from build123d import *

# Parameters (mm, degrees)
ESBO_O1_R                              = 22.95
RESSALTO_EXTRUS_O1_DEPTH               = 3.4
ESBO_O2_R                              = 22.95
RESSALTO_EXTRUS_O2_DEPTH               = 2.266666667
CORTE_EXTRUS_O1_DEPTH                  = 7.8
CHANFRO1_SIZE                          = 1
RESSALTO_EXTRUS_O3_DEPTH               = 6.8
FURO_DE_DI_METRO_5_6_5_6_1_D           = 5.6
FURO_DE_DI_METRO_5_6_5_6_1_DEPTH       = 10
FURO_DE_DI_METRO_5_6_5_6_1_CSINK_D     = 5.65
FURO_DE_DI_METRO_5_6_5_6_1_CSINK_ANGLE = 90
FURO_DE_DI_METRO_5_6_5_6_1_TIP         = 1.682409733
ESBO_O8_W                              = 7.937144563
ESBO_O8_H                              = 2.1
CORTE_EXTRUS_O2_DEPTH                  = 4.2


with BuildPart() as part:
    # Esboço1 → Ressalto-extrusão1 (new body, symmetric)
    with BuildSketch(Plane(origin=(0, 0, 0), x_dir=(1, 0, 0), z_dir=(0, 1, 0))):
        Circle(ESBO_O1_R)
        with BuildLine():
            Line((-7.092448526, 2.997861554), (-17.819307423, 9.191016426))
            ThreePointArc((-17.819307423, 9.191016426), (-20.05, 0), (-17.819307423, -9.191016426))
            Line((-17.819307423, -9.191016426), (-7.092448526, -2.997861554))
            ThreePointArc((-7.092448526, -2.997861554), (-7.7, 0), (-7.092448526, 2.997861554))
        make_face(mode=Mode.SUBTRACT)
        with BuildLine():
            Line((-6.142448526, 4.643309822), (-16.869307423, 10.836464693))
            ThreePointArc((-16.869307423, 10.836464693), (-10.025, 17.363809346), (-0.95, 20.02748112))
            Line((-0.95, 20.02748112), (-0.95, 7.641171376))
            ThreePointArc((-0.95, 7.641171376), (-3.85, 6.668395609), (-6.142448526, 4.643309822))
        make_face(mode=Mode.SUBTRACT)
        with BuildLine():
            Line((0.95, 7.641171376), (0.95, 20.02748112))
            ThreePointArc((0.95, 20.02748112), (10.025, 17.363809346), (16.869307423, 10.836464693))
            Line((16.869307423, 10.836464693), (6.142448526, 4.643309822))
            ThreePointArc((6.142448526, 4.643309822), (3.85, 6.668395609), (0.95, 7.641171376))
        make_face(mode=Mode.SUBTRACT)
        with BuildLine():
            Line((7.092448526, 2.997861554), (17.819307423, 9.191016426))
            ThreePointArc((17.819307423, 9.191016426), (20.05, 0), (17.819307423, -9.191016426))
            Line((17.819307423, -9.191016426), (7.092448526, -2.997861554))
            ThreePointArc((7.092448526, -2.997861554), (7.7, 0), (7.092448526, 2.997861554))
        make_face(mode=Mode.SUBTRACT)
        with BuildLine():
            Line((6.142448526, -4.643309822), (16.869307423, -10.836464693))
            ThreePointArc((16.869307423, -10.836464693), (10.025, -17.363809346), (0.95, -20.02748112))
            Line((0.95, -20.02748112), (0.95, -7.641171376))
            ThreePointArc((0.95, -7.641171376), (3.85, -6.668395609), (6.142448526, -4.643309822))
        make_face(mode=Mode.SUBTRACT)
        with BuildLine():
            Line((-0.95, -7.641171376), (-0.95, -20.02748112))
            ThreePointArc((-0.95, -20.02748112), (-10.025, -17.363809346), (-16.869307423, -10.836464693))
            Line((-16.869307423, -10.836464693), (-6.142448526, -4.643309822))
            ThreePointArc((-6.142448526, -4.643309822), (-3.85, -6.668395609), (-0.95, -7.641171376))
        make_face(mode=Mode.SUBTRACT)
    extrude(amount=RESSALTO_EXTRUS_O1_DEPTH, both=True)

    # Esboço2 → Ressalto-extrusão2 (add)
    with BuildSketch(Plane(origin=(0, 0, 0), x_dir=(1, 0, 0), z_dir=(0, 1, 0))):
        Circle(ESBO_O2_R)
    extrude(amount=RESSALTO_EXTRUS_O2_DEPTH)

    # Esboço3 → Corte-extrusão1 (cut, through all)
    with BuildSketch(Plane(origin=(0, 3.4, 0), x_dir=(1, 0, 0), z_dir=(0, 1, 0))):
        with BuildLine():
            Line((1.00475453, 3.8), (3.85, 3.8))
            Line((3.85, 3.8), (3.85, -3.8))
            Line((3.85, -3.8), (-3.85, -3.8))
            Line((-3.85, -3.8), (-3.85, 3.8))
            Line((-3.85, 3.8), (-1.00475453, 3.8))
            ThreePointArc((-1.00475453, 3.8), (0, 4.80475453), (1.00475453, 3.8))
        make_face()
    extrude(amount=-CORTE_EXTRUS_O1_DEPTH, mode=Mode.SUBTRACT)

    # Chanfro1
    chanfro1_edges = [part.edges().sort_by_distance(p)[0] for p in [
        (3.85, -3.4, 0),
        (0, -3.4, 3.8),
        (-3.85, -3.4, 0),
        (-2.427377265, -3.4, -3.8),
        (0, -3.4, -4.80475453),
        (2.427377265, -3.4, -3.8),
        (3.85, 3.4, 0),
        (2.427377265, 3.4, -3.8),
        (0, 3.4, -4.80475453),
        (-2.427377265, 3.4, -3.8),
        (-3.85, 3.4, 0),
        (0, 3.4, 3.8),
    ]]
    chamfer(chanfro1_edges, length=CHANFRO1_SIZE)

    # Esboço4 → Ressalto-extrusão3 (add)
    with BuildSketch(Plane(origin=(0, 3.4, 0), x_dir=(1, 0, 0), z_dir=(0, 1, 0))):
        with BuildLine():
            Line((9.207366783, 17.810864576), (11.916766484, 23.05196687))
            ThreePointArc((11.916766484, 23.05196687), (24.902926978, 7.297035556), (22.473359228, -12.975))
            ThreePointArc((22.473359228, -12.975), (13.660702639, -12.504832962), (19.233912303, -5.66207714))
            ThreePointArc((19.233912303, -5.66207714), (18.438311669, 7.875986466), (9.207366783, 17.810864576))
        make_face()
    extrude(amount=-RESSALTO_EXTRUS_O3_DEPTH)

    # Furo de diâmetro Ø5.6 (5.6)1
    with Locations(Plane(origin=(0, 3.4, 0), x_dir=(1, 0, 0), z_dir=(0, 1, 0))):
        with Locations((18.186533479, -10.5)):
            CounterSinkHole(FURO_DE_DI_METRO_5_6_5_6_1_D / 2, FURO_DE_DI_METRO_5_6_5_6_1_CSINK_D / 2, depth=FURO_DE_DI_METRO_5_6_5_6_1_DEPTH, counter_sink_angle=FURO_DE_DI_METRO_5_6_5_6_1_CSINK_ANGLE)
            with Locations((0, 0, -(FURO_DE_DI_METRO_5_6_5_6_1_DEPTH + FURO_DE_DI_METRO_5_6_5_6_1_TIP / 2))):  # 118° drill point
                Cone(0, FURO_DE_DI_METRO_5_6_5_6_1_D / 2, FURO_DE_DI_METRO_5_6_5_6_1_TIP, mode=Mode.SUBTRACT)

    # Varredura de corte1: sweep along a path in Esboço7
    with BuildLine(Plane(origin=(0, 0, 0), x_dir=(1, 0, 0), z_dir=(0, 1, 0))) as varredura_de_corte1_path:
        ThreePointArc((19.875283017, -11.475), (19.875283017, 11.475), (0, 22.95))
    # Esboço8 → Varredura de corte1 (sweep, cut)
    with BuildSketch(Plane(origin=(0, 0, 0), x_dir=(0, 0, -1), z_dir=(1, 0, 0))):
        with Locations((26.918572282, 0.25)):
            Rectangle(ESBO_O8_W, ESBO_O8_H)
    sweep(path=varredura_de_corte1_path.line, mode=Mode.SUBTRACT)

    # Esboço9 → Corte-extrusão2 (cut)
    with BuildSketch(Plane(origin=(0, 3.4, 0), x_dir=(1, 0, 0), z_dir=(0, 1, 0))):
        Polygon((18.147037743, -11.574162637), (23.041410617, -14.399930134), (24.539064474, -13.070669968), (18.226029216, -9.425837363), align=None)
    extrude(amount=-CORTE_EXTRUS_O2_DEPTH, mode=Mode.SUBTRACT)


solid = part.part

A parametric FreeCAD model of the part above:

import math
import FreeCAD as App
import Part
import Sketcher

V = App.Vector
Q = App.Units.Quantity


def edges_at(feature, points):
    """Names of the edges that pass closest to the given points."""
    edges = feature.Shape.Edges
    near = lambda p: min(range(len(edges)), key=lambda i: edges[i].distToShape(Part.Vertex(*p))[0])
    return sorted({f"Edge{near(p) + 1}" for p in points})


def add_polygon(sketch, points):
    """Adds a closed chain of lines whose ends are joined by coincident constraints."""
    first, n = sketch.GeometryCount, len(points)
    for a, b in zip(points, points[1:] + points[:1]):
        sketch.addGeometry(Part.LineSegment(App.Vector(*a, 0), App.Vector(*b, 0)), False)
    for i in range(n):
        sketch.addConstraint(Sketcher.Constraint("Coincident", first + i, 2, first + (i + 1) % n, 1))

doc = App.newDocument("Part")
body = doc.addObject("PartDesign::Body", "Body")

# Sketch on XZ plane
sketch1 = body.newObject("Sketcher::SketchObject", "Sketch")
sketch1.AttachmentSupport = (doc.getObject("XZ_Plane"), [""])
sketch1.MapMode = "FlatFace"
sketch1.addGeometry([
    Part.Circle(V(0, 0, 0), V(0, 0, 1), 23),  # 0
    Part.ArcOfCircle(Part.Circle(V(0, 0, 0), V(0, 0, 1), 8), math.radians(97), math.radians(143)),  # 1
    Part.LineSegment(V(-1, 8, 0), V(-1, 20, 0)),  # 2
    Part.ArcOfCircle(Part.Circle(V(0, 0, 0), V(0, 0, 1), 20), math.radians(93), math.radians(147)),  # 3
    Part.LineSegment(V(-17, 11, 0), V(-6, 5, 0)),  # 4
    Part.ArcOfCircle(Part.Circle(V(0, 0, 0), V(0, 0, 1), 8), math.radians(37), math.radians(83)),  # 5
    Part.LineSegment(V(6, 5, 0), V(17, 11, 0)),  # 6
    Part.ArcOfCircle(Part.Circle(V(0, 0, 0), V(0, 0, 1), 20), math.radians(33), math.radians(87)),  # 7
    Part.LineSegment(V(1, 20, 0), V(1, 8, 0)),  # 8
    Part.LineSegment(V(-18, -9, 0), V(-7, -3, 0)),  # 9
    Part.ArcOfCircle(Part.Circle(V(0, 0, 0), V(0, 0, 1), 8), math.radians(157), math.radians(203)),  # 10
    Part.LineSegment(V(-7, 3, 0), V(-18, 9, 0)),  # 11
    Part.ArcOfCircle(Part.Circle(V(0, 0, 0), V(0, 0, 1), 20), math.radians(153), math.radians(207)),  # 12
    Part.ArcOfCircle(Part.Circle(V(0, 0, 0), V(0, 0, 1), 8), math.radians(-143), math.radians(-97)),  # 13
    Part.LineSegment(V(-6, -5, 0), V(-17, -11, 0)),  # 14
    Part.ArcOfCircle(Part.Circle(V(0, 0, 0), V(0, 0, 1), 20), math.radians(-147), math.radians(-93)),  # 15
    Part.LineSegment(V(-1, -20, 0), V(-1, -8, 0)),  # 16
    Part.ArcOfCircle(Part.Circle(V(0, 0, 0), V(0, 0, 1), 8), math.radians(-23), math.radians(23)),  # 17
    Part.LineSegment(V(7, -3, 0), V(18, -9, 0)),  # 18
    Part.ArcOfCircle(Part.Circle(V(0, 0, 0), V(0, 0, 1), 20), math.radians(-27), math.radians(27)),  # 19
    Part.LineSegment(V(18, 9, 0), V(7, 3, 0)),  # 20
    Part.ArcOfCircle(Part.Circle(V(0, 0, 0), V(0, 0, 1), 8), math.radians(-83), math.radians(-37)),  # 21
    Part.LineSegment(V(1, -8, 0), V(1, -20, 0)),  # 22
    Part.ArcOfCircle(Part.Circle(V(0, 0, 0), V(0, 0, 1), 20), math.radians(-87), math.radians(-33)),  # 23
    Part.LineSegment(V(17, -11, 0), V(6, -5, 0)),  # 24
], False)
sketch1.addConstraint([
    Sketcher.Constraint("Coincident", 1, 1, 2, 1),
    Sketcher.Constraint("Coincident", 2, 2, 3, 1),
    Sketcher.Constraint("Coincident", 3, 2, 4, 1),
    Sketcher.Constraint("Coincident", 4, 2, 1, 2),
    Sketcher.Constraint("Coincident", 5, 1, 6, 1),
    Sketcher.Constraint("Coincident", 6, 2, 7, 1),
    Sketcher.Constraint("Coincident", 7, 2, 8, 1),
    Sketcher.Constraint("Coincident", 8, 2, 5, 2),
    Sketcher.Constraint("Coincident", 9, 2, 10, 2),
    Sketcher.Constraint("Coincident", 10, 1, 11, 1),
    Sketcher.Constraint("Coincident", 11, 2, 12, 1),
    Sketcher.Constraint("Coincident", 12, 2, 9, 1),
    Sketcher.Constraint("Coincident", 13, 1, 14, 1),
    Sketcher.Constraint("Coincident", 14, 2, 15, 1),
    Sketcher.Constraint("Coincident", 15, 2, 16, 1),
    Sketcher.Constraint("Coincident", 16, 2, 13, 2),
    Sketcher.Constraint("Coincident", 17, 1, 18, 1),
    Sketcher.Constraint("Coincident", 18, 2, 19, 1),
    Sketcher.Constraint("Coincident", 19, 2, 20, 1),
    Sketcher.Constraint("Coincident", 20, 2, 17, 2),
    Sketcher.Constraint("Coincident", 21, 1, 22, 1),
    Sketcher.Constraint("Coincident", 22, 2, 23, 1),
    Sketcher.Constraint("Coincident", 23, 2, 24, 1),
    Sketcher.Constraint("Coincident", 24, 2, 21, 2),
    Sketcher.Constraint("Vertical", 2),
    Sketcher.Constraint("Vertical", 8),
    Sketcher.Constraint("Vertical", 16),
    Sketcher.Constraint("Vertical", 22),
    Sketcher.Constraint("Coincident", 0, 3, -1, 1),
    Sketcher.Constraint("Coincident", 1, 3, -1, 1),
    Sketcher.Constraint("Coincident", 3, 3, -1, 1),
    Sketcher.Constraint("Coincident", 5, 3, -1, 1),
    Sketcher.Constraint("Coincident", 7, 3, -1, 1),
    Sketcher.Constraint("Coincident", 10, 3, -1, 1),
    Sketcher.Constraint("Coincident", 12, 3, -1, 1),
    Sketcher.Constraint("Coincident", 13, 3, -1, 1),
    Sketcher.Constraint("Coincident", 15, 3, -1, 1),
    Sketcher.Constraint("Coincident", 17, 3, -1, 1),
    Sketcher.Constraint("Coincident", 19, 3, -1, 1),
    Sketcher.Constraint("Coincident", 21, 3, -1, 1),
    Sketcher.Constraint("Coincident", 23, 3, -1, 1),
    Sketcher.Constraint("Equal", 1, 5),
    Sketcher.Constraint("Equal", 3, 7),
    Sketcher.Constraint("Equal", 5, 10),
    Sketcher.Constraint("Equal", 7, 12),
    Sketcher.Constraint("Equal", 10, 13),
    Sketcher.Constraint("Equal", 12, 15),
    Sketcher.Constraint("Equal", 13, 17),
    Sketcher.Constraint("Equal", 15, 19),
    Sketcher.Constraint("Equal", 17, 21),
    Sketcher.Constraint("Equal", 19, 23),
    Sketcher.Constraint("Parallel", 6, 9),
    Sketcher.Constraint("Parallel", 4, 11),
    Sketcher.Constraint("Parallel", 9, 14),
    Sketcher.Constraint("Parallel", 11, 18),
    Sketcher.Constraint("Parallel", 14, 20),
    Sketcher.Constraint("Parallel", 18, 24),
    Sketcher.Constraint("Horizontal", 4, 2, 5, 1),
    Sketcher.Constraint("Horizontal", 3, 2, 6, 2),
    Sketcher.Constraint("Horizontal", 2, 2, 7, 2),
    Sketcher.Constraint("Horizontal", 9, 2, 17, 1),
    Sketcher.Constraint("Horizontal", 11, 2, 19, 2),
    Sketcher.Constraint("Horizontal", 16, 2, 21, 1),
    Sketcher.Constraint("Horizontal", 14, 2, 23, 2),
    Sketcher.Constraint("Vertical", 9, 2, 10, 1),
    Sketcher.Constraint("Vertical", 4, 2, 13, 1),
    Sketcher.Constraint("Vertical", 2, 2, 15, 2),
    Sketcher.Constraint("Equal", 6, 9),
    Sketcher.Constraint("Diameter", 0, 45.9),
    Sketcher.Constraint("Radius", 1, 7.7),
    Sketcher.Constraint("Angle", 4, Q("-30 deg")),
    Sketcher.Constraint("Radius", 3, 20.05),
    Sketcher.Constraint("DistanceX", 2, 2, 7, 2, 1.9),
    Sketcher.Constraint("DistanceX", 10, 1, 4, 2, 0.95),
])
pad1 = body.newObject("PartDesign::Pad", "Pad")
pad1.Profile = sketch1
pad1.Length = 6.8
pad1.Midplane = True

# Sketch on XZ plane
sketch2 = body.newObject("Sketcher::SketchObject", "Sketch001")
sketch2.AttachmentSupport = (doc.getObject("XZ_Plane"), [""])
sketch2.MapMode = "FlatFace"
sketch2.addGeometry(Part.Circle(V(0, 0, 0), V(0, 0, 1), 23), False)
sketch2.addConstraint([
    Sketcher.Constraint("Coincident", 0, 3, -1, 1),
    Sketcher.Constraint("Diameter", 0, 45.9),
])
pad2 = body.newObject("PartDesign::Pad", "Pad001")
pad2.Profile = sketch2
pad2.Length = 2.266667
pad2.Reversed = True

# Sketch on XZ plane
sketch3 = body.newObject("Sketcher::SketchObject", "Sketch002")
sketch3.AttachmentSupport = (doc.getObject("XZ_Plane"), [""])
sketch3.MapMode = "FlatFace"
sketch3.AttachmentOffset = App.Placement(V(0, 0, -3.4), App.Rotation())
sketch3.addGeometry([
    Part.LineSegment(V(3.9, -3.8, 0), V(1, -3.8, 0)),  # 0
    Part.ArcOfCircle(Part.Circle(V(0, -3.8, 0), V(0, 0, 1), 1), math.radians(180), math.radians(360)),  # 1
    Part.LineSegment(V(-1, -3.8, 0), V(-3.9, -3.8, 0)),  # 2
    Part.LineSegment(V(-3.9, -3.8, 0), V(-3.9, 3.8, 0)),  # 3
    Part.LineSegment(V(-3.9, 3.8, 0), V(3.9, 3.8, 0)),  # 4
    Part.LineSegment(V(3.9, 3.8, 0), V(3.9, -3.8, 0)),  # 5
], False)
sketch3.addConstraint([
    Sketcher.Constraint("Coincident", 0, 2, 1, 2),
    Sketcher.Constraint("Coincident", 1, 1, 2, 1),
    Sketcher.Constraint("Coincident", 2, 2, 3, 1),
    Sketcher.Constraint("Coincident", 3, 2, 4, 1),
    Sketcher.Constraint("Coincident", 4, 2, 5, 1),
    Sketcher.Constraint("Coincident", 5, 2, 0, 1),
    Sketcher.Constraint("Horizontal", 0),
    Sketcher.Constraint("Horizontal", 2),
    Sketcher.Constraint("Vertical", 3),
    Sketcher.Constraint("Horizontal", 4),
    Sketcher.Constraint("Vertical", 5),
    Sketcher.Constraint("Symmetric", 2, 2, 4, 2, -1, 1),
    Sketcher.Constraint("Symmetric", 0, 2, 1, 1, -2),
    Sketcher.Constraint("Horizontal", 1, 3, 0, 2),
    Sketcher.Constraint("DistanceX", 4, 1, 4, 2, 7.7),
    Sketcher.Constraint("DistanceY", 3, 1, 3, 2, 7.6),
    Sketcher.Constraint("Radius", 1, 1.004755),
])
pocket1 = body.newObject("PartDesign::Pocket", "Pocket")
pocket1.Profile = sketch3
pocket1.Type = "ThroughAll"
pocket1.Reversed = True
doc.recompute()

chamfer = body.newObject("PartDesign::Chamfer", "Chamfer")
chamfer.Base = (pocket1, edges_at(pocket1, [
    (3.85, -3.4, 0),
    (0, -3.4, 3.8),
    (-3.85, -3.4, 0),
    (-2.427, -3.4, -3.8),
    (0, -3.4, -4.805),
    (2.427, -3.4, -3.8),
    (3.85, 3.4, 0),
    (2.427, 3.4, -3.8),
    (0, 3.4, -4.805),
    (-2.427, 3.4, -3.8),
    (-3.85, 3.4, 0),
    (0, 3.4, 3.8),
]))
chamfer.Size = 1

# Sketch on XZ plane
sketch4 = body.newObject("Sketcher::SketchObject", "Sketch003")
sketch4.AttachmentSupport = (doc.getObject("XZ_Plane"), [""])
sketch4.MapMode = "FlatFace"
sketch4.AttachmentOffset = App.Placement(V(0, 0, -3.4), App.Rotation())
sketch4.addGeometry([
    Part.LineSegment(V(11.9, -23.1, 0), V(9.2, -17.8, 0)),
    Part.ArcOfCircle(Part.Circle(V(0, 0, 0), V(0, 0, 1), 20.1), math.radians(-63), math.radians(16)),
    Part.ArcOfCircle(Part.Circle(V(18.2, 10.5, 0), V(0, 0, 1), 5), math.radians(30), math.radians(282)),
    Part.ArcOfCircle(Part.Circle(V(0, 0, 0), V(0, 0, 1), 26), math.radians(-63), math.radians(30)),
], False)
sketch4.addConstraint([
    Sketcher.Constraint("Coincident", 0, 2, 1, 1),
    Sketcher.Constraint("Coincident", 1, 2, 2, 2),
    Sketcher.Constraint("Tangent", 2, 1, 3, 2),
    Sketcher.Constraint("Coincident", 3, 1, 0, 1),
    Sketcher.Constraint("Coincident", 1, 3, -1, 1),
    Sketcher.Constraint("Coincident", 3, 3, -1, 1),
    Sketcher.Constraint("Radius", 1, 20.05),
    Sketcher.Constraint("Radius", 2, 4.95),
    Sketcher.Constraint("Radius", 3, 25.95),
    Sketcher.Constraint("DistanceY", -1, 1, 2, 3, 10.5),
    Sketcher.Constraint("DistanceX", 0, 2, 3, 1, 2.7094),
    Sketcher.Constraint("DistanceY", 0, 2, 1, 2, 23.472942),
])
pad3 = body.newObject("PartDesign::Pad", "Pad002")
pad3.Profile = sketch4
pad3.Length = 6.8

# Sketch on XZ plane
sketch5 = body.newObject("Sketcher::SketchObject", "Sketch004")
sketch5.AttachmentSupport = (doc.getObject("XZ_Plane"), [""])
sketch5.MapMode = "FlatFace"
sketch5.AttachmentOffset = App.Placement(V(0, 0, -3.4), App.Rotation())
sketch5.addGeometry(Part.Circle(V(18.2, 10.5, 0), V(0, 0, 1), 2.8), False)
sketch5.addConstraint([
    Sketcher.Constraint("Diameter", 0, 5.6),
    Sketcher.Constraint("DistanceY", -1, 1, 0, 3, 10.5),
    Sketcher.Constraint("DistanceX", -1, 1, 0, 3, 18.186533),
])
doc.recompute()
hole = body.newObject("PartDesign::Hole", "Hole")
hole.Profile = sketch5
hole.ThreadType = "None"
hole.Diameter = 5.6
hole.DepthType = "Dimension"
hole.Depth = 10
hole.DrillPoint = "Angled"
hole.DrillPointAngle = 118
hole.HoleCutType = "Countersink"
hole.HoleCutDiameter = 5.65
hole.HoleCutCountersinkAngle = 90
hole.Reversed = True

# Sketch on YZ plane
sketch6 = body.newObject("Sketcher::SketchObject", "Sketch005")
sketch6.AttachmentSupport = (doc.getObject("YZ_Plane"), [""])
sketch6.MapMode = "FlatFace"
add_polygon(sketch6, [(1.3, -22.9), (-0.8, -22.9), (-0.8, -30.9), (1.3, -30.9)])  # lines 0-3
sketch6.addConstraint([
    Sketcher.Constraint("Horizontal", 0),
    Sketcher.Constraint("Vertical", 1),
    Sketcher.Constraint("Horizontal", 2),
    Sketcher.Constraint("Vertical", 3),
    Sketcher.Constraint("DistanceX", 0, 2, 0, 1, 2.1),
    Sketcher.Constraint("DistanceX", 0, 2, -1, 1, 0.8),
    Sketcher.Constraint("DistanceY", 0, 2, -1, 1, 22.95),
    Sketcher.Constraint("DistanceY", 1, 2, 1, 1, 7.937145),
])

# Sketch on XZ plane
sketch7 = body.newObject("Sketcher::SketchObject", "Sketch006")
sketch7.AttachmentSupport = (doc.getObject("XZ_Plane"), [""])
sketch7.MapMode = "FlatFace"
sketch7.addGeometry(Part.ArcOfCircle(Part.Circle(V(0, 0, 0), V(0, 0, 1), 23), math.radians(-90), math.radians(30)), False)
sketch7.addConstraint([
    Sketcher.Constraint("Coincident", 0, 3, -1, 1),
    Sketcher.Constraint("PointOnObject", 0, 1, -2),
    Sketcher.Constraint("Radius", 0, 22.95),
    Sketcher.Constraint("DistanceY", -1, 1, 0, 2, 11.475),
])
doc.recompute()

subtractivepipe = body.newObject("PartDesign::SubtractivePipe", "SubtractivePipe")
subtractivepipe.Profile = sketch6
subtractivepipe.Spine = (sketch7, ["Edge1"])

# Sketch on XZ plane
sketch8 = body.newObject("Sketcher::SketchObject", "Sketch007")
sketch8.AttachmentSupport = (doc.getObject("XZ_Plane"), [""])
sketch8.MapMode = "FlatFace"
sketch8.AttachmentOffset = App.Placement(V(0, 0, -3.4), App.Rotation())
add_polygon(sketch8, [(18.1, 11.6), (23, 14.4), (24.5, 13.1), (18.2, 9.4)])  # lines 0-3
sketch8.addConstraint([
    Sketcher.Constraint("Parallel", 0, 2),
    Sketcher.Constraint("Angle", 0, Q("30 deg")),
    Sketcher.Constraint("DistanceX", -1, 1, 0, 2, 23.041411),
    Sketcher.Constraint("DistanceY", -1, 1, 0, 2, 14.39993),
    Sketcher.Constraint("DistanceY", -1, 1, 1, 2, 13.07067),
    Sketcher.Constraint("DistanceX", -1, 1, 2, 2, 18.226029),
    Sketcher.Constraint("DistanceX", 3, 2, 2, 2, 0.078991),
    Sketcher.Constraint("Distance", 1, 2.002473),
])
pocket2 = body.newObject("PartDesign::Pocket", "Pocket001")
pocket2.Profile = sketch8
pocket2.Length = 4.2
pocket2.Reversed = True

doc.recompute()
